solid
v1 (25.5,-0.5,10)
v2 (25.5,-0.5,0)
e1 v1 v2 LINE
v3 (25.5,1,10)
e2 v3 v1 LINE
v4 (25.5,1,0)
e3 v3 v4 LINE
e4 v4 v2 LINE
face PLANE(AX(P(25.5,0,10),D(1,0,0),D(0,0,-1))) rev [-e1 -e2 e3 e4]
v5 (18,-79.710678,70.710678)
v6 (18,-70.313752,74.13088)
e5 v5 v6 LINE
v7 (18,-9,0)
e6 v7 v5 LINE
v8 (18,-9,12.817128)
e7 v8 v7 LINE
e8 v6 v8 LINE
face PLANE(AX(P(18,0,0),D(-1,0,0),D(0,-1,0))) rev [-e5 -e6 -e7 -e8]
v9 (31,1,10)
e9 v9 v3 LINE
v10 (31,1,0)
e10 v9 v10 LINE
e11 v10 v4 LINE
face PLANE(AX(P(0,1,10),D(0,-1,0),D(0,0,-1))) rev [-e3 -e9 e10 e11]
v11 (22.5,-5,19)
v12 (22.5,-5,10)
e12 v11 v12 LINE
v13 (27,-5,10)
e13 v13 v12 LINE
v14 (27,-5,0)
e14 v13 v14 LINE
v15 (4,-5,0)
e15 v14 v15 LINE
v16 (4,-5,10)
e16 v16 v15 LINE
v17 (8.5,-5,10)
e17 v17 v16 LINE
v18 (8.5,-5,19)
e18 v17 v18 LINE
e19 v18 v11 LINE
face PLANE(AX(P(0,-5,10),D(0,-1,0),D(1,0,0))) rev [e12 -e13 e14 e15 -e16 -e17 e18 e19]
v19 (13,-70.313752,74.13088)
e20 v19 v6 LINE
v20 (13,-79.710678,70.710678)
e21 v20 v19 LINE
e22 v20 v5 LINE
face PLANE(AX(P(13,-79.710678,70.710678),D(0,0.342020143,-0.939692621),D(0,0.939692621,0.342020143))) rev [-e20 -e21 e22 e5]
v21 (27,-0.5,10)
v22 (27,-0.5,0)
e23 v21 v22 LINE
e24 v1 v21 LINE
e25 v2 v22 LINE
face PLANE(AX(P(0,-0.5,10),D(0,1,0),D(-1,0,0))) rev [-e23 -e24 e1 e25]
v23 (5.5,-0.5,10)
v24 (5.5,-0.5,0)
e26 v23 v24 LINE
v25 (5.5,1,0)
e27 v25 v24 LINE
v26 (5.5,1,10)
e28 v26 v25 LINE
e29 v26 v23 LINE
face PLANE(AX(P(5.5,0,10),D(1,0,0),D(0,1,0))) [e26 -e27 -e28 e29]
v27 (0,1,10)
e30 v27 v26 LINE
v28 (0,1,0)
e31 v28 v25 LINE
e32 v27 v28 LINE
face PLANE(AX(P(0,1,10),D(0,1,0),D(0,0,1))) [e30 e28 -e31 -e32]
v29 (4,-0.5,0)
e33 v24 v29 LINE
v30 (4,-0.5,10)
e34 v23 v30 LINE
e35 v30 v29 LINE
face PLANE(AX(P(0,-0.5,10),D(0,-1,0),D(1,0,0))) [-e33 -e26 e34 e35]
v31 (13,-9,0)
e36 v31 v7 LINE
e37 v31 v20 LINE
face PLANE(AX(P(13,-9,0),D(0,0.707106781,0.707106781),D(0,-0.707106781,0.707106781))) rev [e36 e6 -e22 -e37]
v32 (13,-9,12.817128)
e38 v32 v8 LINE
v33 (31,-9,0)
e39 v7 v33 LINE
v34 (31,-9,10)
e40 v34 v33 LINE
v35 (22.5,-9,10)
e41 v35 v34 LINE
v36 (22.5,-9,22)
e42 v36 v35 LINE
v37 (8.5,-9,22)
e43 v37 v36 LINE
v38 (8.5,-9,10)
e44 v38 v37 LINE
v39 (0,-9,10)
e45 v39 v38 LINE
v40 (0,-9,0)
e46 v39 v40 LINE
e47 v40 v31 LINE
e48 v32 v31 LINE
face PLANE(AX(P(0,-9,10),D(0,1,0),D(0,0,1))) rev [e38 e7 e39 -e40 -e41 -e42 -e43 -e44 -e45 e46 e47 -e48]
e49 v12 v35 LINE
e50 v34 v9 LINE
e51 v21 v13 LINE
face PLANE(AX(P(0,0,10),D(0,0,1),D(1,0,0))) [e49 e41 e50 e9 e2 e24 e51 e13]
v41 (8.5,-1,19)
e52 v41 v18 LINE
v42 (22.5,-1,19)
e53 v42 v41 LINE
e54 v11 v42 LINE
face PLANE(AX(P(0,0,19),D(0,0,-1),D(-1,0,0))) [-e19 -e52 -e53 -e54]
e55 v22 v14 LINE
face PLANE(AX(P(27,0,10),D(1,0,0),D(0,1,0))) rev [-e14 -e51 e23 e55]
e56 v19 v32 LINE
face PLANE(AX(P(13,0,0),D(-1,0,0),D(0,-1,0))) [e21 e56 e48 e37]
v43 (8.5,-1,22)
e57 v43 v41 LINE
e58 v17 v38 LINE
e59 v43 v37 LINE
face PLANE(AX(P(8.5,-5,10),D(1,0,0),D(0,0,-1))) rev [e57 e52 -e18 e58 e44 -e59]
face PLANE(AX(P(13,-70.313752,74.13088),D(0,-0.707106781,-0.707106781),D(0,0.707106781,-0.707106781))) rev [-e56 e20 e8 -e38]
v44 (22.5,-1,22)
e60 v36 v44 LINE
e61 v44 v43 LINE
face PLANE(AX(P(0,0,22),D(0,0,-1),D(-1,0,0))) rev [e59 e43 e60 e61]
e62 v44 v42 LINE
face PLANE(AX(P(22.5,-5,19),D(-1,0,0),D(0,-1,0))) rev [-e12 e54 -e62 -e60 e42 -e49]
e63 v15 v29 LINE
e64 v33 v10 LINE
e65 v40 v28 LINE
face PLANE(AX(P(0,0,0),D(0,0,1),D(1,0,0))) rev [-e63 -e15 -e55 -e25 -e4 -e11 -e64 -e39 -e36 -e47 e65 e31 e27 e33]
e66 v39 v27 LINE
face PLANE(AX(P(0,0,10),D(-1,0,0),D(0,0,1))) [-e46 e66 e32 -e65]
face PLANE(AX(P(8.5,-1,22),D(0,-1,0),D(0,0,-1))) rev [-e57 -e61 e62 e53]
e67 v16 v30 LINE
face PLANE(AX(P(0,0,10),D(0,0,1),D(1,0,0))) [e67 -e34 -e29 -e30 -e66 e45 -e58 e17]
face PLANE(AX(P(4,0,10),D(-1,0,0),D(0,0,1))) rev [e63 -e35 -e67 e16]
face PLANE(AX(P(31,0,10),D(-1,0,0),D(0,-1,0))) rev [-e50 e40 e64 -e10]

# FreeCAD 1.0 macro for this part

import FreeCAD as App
import Part
import Sketcher
from FreeCAD import Vector
Q = App.Units.Quantity


def add_polygon(sketch, points):
    """Adds a closed chain of lines whose ends are joined by coincident constraints."""
    first, n = sketch.GeometryCount, len(points)
    for a, b in zip(points, points[1:] + points[:1]):
        sketch.addGeometry(Part.LineSegment(App.Vector(*a, 0), App.Vector(*b, 0)), False)
    for i in range(n):
        sketch.addConstraint(Sketcher.Constraint("Coincident", first + i, 2, first + (i + 1) % n, 1))

doc = App.newDocument("Part")
body = doc.addObject("PartDesign::Body", "Body")

# Sketch on XY plane
sketch1 = doc.addObject("Sketcher::SketchObject", "Sketch")
body.addObject(sketch1)
sketch1.AttachmentSupport = (doc.XY_Plane, [""])
sketch1.MapMode = "FlatFace"
add_polygon(sketch1, [(0, 1), (0, -9), (31, -9), (31, 1), (25.5, 1), (25.5, -0.5), (27, -0.5), (27, -5), (4, -5), (4, -0.5), (5.5, -0.5), (5.5, 1)])  # lines 0-11
sketch1.addConstraint([
    Sketcher.Constraint("Vertical", 0),
    Sketcher.Constraint("Horizontal", 1),
    Sketcher.Constraint("Vertical", 2),
    Sketcher.Constraint("Horizontal", 3),
    Sketcher.Constraint("Vertical", 4),
    Sketcher.Constraint("Horizontal", 5),
    Sketcher.Constraint("Vertical", 6),
    Sketcher.Constraint("Horizontal", 7),
    Sketcher.Constraint("Vertical", 8),
    Sketcher.Constraint("Horizontal", 9),
    Sketcher.Constraint("Vertical", 10),
    Sketcher.Constraint("Horizontal", 11),
    Sketcher.Constraint("PointOnObject", 0, 2, -2),
    Sketcher.Constraint("Horizontal", 5, 2, 8, 2),
    Sketcher.Constraint("Horizontal", 3, 2, 10, 2),
    Sketcher.Constraint("Equal", 5, 9),
    Sketcher.Constraint("Equal", 3, 11),
    Sketcher.Constraint("Equal", 9, 4),
    Sketcher.Constraint("DistanceX", 1, 1, 1, 2, Q("31 mm")),
    Sketcher.Constraint("DistanceX", 7, 2, 7, 1, Q("23 mm")),
    Sketcher.Constraint("DistanceY", 0, 2, 0, 1, Q("10 mm")),
    Sketcher.Constraint("DistanceX", 3, 2, 3, 1, Q("5.5 mm")),
    Sketcher.Constraint("DistanceY", 6, 2, 6, 1, Q("4.5 mm")),
    Sketcher.Constraint("DistanceY", 0, 2, -1, 1, Q("9 mm")),
])
pad1 = doc.addObject("PartDesign::Pad", "Pad")
body.addObject(pad1)
pad1.Profile = sketch1
pad1.Length = 10

# Sketch on YZ plane
sketch2 = doc.addObject("Sketcher::SketchObject", "Sketch001")
body.addObject(sketch2)
sketch2.AttachmentSupport = (doc.YZ_Plane, [""])
sketch2.MapMode = "FlatFace"
sketch2.AttachmentOffset = App.Placement(Vector(0, 0, 15.5), App.Rotation())
add_polygon(sketch2, [(-9, 0), (-80, 71), (-70, 74), (-9, 13)])  # lines 0-3
sketch2.addConstraint([
    Sketcher.Constraint("Vertical", 3),
    Sketcher.Constraint("PointOnObject", 3, 2, -1),
    Sketcher.Constraint("Parallel", 0, 2),
    Sketcher.Constraint("Angle", 0, Q("135 deg")),
    Sketcher.Constraint("Angle", 1, Q("20 deg")),
    Sketcher.Constraint("Distance", 0, Q("100 mm")),
    Sketcher.Constraint("Distance", 1, Q("10 mm")),
    Sketcher.Constraint("DistanceX", 2, 2, -1, 1, Q("9 mm")),
])
pad2 = doc.addObject("PartDesign::Pad", "Pad001")
body.addObject(pad2)
pad2.Profile = sketch2
pad2.Length = 5
pad2.Midplane = True

# Sketch on XZ plane
sketch3 = doc.addObject("Sketcher::SketchObject", "Sketch002")
body.addObject(sketch3)
sketch3.AttachmentSupport = (doc.XZ_Plane, [""])
sketch3.MapMode = "FlatFace"
sketch3.AttachmentOffset = App.Placement(Vector(0, 0, 9), App.Rotation())
add_polygon(sketch3, [(8, 10), (8, 19), (22, 19), (22, 10)])  # lines 0-3
sketch3.addConstraint([
    Sketcher.Constraint("Vertical", 0),
    Sketcher.Constraint("Horizontal", 1),
    Sketcher.Constraint("Vertical", 2),
    Sketcher.Constraint("Horizontal", 3),
    Sketcher.Constraint("DistanceX", 1, 1, 1, 2, Q("14 mm")),
    Sketcher.Constraint("DistanceY", 0, 1, 0, 2, Q("9 mm")),
    Sketcher.Constraint("DistanceY", -1, 1, 0, 2, Q("19 mm")),
    Sketcher.Constraint("DistanceX", -1, 1, 0, 2, Q("8.5 mm")),
])
pad3 = doc.addObject("PartDesign::Pad", "Pad002")
body.addObject(pad3)
pad3.Profile = sketch3
pad3.Length = 4
pad3.Reversed = True

# Sketch on XY plane
sketch4 = doc.addObject("Sketcher::SketchObject", "Sketch003")
body.addObject(sketch4)
sketch4.AttachmentSupport = (doc.XY_Plane, [""])
sketch4.MapMode = "FlatFace"
sketch4.AttachmentOffset = App.Placement(Vector(0, 0, 19), App.Rotation())
add_polygon(sketch4, [(8, -1), (8, -9), (22, -9), (22, -1)])  # lines 0-3
sketch4.addConstraint([
    Sketcher.Constraint("Vertical", 0),
    Sketcher.Constraint("Horizontal", 1),
    Sketcher.Constraint("Vertical", 2),
    Sketcher.Constraint("Horizontal", 3),
    Sketcher.Constraint("DistanceX", 1, 1, 1, 2, Q("14 mm")),
    Sketcher.Constraint("DistanceY", 0, 2, 0, 1, Q("8 mm")),
    Sketcher.Constraint("DistanceY", 0, 2, -1, 1, Q("9 mm")),
    Sketcher.Constraint("DistanceX", -1, 1, 0, 2, Q("8.5 mm")),
])
pad4 = doc.addObject("PartDesign::Pad", "Pad003")
body.addObject(pad4)
pad4.Profile = sketch4
pad4.Length = 3

doc.recompute()
